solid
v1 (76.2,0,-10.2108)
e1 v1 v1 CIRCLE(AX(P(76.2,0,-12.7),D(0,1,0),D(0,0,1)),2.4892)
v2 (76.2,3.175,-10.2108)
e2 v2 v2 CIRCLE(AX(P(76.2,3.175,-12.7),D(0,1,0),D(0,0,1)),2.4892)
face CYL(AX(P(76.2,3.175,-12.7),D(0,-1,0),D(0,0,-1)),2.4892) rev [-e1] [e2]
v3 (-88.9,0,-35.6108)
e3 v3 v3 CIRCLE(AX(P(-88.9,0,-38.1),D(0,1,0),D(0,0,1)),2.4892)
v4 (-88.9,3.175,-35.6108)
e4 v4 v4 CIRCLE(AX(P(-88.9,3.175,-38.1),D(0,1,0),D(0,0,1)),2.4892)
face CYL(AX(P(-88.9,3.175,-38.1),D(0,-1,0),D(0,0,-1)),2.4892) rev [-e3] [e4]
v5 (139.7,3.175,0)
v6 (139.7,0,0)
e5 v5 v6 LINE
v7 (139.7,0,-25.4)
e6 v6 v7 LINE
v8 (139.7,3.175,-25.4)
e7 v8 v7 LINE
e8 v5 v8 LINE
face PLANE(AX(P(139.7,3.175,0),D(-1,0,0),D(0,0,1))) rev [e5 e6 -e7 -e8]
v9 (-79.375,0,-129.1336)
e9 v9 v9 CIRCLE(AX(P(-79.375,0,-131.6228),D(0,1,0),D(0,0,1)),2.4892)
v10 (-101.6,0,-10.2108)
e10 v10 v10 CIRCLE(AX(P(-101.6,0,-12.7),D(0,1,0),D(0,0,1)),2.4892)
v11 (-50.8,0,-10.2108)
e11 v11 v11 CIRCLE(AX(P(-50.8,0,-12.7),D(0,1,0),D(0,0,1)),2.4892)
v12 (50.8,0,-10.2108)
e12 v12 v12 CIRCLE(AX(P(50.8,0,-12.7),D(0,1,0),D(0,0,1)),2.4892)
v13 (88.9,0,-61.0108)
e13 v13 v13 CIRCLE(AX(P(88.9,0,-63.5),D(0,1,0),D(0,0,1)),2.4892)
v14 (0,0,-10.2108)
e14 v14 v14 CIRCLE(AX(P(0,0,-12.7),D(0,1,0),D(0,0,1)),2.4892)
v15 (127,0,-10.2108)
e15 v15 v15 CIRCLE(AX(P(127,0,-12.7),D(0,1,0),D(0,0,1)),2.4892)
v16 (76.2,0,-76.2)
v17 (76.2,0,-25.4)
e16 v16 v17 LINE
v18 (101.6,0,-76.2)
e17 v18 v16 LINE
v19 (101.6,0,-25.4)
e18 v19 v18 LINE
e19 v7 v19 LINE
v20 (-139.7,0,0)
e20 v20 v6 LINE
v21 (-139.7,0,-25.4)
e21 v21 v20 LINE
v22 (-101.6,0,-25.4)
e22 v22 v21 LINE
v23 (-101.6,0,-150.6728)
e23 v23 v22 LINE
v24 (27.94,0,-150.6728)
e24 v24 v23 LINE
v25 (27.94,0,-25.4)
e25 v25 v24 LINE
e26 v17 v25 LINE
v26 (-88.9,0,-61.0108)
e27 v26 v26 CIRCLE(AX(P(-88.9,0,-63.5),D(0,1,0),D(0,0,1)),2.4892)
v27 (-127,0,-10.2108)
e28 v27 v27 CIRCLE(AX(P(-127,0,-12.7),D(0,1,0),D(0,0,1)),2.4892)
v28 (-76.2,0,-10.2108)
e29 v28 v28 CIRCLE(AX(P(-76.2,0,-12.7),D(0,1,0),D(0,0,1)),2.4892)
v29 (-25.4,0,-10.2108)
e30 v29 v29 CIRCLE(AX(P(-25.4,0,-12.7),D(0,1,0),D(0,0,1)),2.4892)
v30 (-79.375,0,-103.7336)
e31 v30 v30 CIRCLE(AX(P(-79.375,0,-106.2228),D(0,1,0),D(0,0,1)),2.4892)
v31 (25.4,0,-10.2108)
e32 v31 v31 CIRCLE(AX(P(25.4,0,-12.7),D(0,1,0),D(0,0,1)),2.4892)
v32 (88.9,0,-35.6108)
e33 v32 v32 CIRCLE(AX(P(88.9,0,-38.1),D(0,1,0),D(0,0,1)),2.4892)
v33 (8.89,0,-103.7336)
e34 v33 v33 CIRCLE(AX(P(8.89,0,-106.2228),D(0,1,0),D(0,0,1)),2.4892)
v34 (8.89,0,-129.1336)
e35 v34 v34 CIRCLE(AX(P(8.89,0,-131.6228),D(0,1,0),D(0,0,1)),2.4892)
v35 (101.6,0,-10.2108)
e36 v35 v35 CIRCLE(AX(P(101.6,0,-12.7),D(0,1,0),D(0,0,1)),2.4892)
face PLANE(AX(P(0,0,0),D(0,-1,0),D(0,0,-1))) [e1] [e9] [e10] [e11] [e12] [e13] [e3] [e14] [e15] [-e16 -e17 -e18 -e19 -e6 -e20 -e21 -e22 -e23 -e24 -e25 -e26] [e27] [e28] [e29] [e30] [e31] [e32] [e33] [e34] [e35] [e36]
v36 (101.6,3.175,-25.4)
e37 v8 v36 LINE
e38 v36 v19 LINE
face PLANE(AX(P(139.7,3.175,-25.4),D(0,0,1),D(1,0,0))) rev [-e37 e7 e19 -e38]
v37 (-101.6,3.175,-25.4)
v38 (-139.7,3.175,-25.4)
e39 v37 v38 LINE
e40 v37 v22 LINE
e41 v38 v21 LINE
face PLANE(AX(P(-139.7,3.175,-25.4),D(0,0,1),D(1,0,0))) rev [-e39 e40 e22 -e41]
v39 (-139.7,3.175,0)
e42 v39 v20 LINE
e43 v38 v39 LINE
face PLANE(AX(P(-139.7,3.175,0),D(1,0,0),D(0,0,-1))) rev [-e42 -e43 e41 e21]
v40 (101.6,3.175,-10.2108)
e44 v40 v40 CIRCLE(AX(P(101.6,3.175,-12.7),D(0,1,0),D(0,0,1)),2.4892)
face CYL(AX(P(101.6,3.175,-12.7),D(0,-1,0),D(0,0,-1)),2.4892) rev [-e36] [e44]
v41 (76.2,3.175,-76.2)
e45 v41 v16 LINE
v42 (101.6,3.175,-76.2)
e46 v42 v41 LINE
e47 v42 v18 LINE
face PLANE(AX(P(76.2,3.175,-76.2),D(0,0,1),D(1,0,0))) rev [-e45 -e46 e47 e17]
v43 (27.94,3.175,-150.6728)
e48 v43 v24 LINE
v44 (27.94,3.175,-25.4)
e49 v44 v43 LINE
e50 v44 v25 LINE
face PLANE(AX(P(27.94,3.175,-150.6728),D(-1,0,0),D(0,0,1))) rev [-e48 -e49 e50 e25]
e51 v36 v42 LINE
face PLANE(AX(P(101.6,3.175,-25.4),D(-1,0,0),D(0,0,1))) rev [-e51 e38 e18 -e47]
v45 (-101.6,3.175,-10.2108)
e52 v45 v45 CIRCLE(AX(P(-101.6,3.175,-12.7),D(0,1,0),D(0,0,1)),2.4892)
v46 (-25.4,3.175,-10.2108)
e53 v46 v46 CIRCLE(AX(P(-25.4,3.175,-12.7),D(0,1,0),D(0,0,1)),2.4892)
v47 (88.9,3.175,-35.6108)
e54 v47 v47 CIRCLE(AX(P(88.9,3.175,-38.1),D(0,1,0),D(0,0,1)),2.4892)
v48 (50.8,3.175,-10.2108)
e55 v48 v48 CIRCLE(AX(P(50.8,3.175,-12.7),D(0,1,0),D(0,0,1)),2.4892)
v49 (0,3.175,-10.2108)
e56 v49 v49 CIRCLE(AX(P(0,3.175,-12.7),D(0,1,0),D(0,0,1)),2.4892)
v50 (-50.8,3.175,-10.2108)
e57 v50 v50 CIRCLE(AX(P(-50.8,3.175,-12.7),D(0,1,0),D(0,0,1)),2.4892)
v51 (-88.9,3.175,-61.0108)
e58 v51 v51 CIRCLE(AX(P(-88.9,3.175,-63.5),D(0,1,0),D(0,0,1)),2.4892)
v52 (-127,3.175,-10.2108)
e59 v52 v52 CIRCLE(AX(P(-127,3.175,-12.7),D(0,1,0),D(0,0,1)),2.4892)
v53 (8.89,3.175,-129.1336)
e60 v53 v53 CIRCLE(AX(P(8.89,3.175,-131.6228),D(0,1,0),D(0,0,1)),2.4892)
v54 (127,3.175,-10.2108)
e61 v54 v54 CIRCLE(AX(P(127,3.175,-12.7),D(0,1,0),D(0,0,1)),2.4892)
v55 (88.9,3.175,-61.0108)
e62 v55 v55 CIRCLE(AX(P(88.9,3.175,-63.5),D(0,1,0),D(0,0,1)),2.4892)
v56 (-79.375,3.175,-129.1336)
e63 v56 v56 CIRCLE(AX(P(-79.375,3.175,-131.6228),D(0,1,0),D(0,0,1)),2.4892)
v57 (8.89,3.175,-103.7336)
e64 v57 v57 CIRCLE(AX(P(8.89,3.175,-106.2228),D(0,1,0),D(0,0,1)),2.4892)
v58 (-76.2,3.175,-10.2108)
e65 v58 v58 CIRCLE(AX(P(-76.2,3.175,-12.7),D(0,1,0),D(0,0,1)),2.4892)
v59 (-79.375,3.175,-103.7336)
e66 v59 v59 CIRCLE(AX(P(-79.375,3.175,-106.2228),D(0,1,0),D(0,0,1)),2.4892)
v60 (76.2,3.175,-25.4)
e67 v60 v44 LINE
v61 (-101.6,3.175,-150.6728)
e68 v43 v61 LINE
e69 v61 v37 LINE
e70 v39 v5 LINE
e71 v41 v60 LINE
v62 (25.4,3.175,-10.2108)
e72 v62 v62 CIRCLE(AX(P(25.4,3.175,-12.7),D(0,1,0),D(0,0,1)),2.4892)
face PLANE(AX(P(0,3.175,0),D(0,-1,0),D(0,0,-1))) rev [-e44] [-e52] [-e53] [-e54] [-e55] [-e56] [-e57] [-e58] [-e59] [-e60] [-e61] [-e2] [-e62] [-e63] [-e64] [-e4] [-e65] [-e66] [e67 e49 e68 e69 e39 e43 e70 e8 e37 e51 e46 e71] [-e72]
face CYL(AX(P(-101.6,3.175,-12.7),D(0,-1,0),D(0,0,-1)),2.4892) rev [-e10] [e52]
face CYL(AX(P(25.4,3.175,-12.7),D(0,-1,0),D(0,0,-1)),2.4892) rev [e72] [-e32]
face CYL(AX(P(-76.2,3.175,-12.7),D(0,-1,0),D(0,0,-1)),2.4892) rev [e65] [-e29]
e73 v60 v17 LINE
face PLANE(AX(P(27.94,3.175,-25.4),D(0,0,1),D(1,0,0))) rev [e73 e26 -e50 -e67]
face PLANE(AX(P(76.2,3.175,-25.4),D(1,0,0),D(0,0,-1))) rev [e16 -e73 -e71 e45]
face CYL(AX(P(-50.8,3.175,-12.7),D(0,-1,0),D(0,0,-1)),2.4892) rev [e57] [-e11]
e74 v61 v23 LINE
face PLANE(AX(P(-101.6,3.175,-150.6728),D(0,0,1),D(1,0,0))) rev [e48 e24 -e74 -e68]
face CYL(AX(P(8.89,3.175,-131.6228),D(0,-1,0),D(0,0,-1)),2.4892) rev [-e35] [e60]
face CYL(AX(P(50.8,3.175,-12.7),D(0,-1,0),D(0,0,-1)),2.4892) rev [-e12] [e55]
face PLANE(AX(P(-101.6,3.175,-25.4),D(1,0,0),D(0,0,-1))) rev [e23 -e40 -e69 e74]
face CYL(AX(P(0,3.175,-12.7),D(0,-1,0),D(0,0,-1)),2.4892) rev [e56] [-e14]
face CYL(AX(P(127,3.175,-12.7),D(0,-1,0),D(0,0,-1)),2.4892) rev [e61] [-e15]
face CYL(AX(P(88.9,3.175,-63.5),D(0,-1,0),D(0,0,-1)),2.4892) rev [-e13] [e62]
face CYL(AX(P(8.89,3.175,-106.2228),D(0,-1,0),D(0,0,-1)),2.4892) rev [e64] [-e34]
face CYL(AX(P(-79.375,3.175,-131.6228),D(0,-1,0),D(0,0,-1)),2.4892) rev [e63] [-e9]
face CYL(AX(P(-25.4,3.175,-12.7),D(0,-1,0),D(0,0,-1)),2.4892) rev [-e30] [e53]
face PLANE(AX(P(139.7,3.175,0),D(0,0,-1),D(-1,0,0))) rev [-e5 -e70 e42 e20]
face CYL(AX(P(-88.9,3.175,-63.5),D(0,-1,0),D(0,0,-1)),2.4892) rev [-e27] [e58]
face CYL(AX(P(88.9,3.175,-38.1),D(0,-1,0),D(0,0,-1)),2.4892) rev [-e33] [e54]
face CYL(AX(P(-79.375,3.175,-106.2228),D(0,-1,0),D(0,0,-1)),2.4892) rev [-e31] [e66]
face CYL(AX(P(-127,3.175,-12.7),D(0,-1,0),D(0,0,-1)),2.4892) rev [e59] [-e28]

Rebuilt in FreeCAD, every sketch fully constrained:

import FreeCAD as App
import Part
import Sketcher
from FreeCAD import Vector
Q = App.Units.Quantity


def add_polygon(sketch, points):
    """Adds a closed chain of lines whose ends are joined by coincident constraints."""
    first, n = sketch.GeometryCount, len(points)
    for a, b in zip(points, points[1:] + points[:1]):
        sketch.addGeometry(Part.LineSegment(App.Vector(*a, 0), App.Vector(*b, 0)), False)
    for i in range(n):
        sketch.addConstraint(Sketcher.Constraint("Coincident", first + i, 2, first + (i + 1) % n, 1))

doc = App.newDocument("Part")
body = doc.addObject("PartDesign::Body", "Body")

sketch1 = doc.addObject("Sketcher::SketchObject", "Sketch")
body.addObject(sketch1)
sketch1.AttachmentSupport = (doc.XZ_Plane, [""])
sketch1.MapMode = "FlatFace"
add_polygon(sketch1, [(-139.7, 0), (139.7, 0), (139.7, -25.4), (101.6, -25.4), (101.6, -76.2), (76.2, -76.2), (76.2, -25.4), (27.9, -25.4), (27.9, -150.7), (-101.6, -150.7), (-101.6, -25.4), (-139.7, -25.4)])
sketch1.addGeometry(Part.Circle(Vector(127, -12.7, 0), Vector(0, 0, 1), 2.5), False)
sketch1.addGeometry(Part.Circle(Vector(101.6, -12.7, 0), Vector(0, 0, 1), 2.5), False)
sketch1.addGeometry(Part.Circle(Vector(76.2, -12.7, 0), Vector(0, 0, 1), 2.5), False)
sketch1.addGeometry(Part.Circle(Vector(88.9, -38.1, 0), Vector(0, 0, 1), 2.5), False)
sketch1.addGeometry(Part.Circle(Vector(50.8, -12.7, 0), Vector(0, 0, 1), 2.5), False)
sketch1.addGeometry(Part.Circle(Vector(25.4, -12.7, 0), Vector(0, 0, 1), 2.5), False)
sketch1.addGeometry(Part.Circle(Vector(88.9, -63.5, 0), Vector(0, 0, 1), 2.5), False)
sketch1.addGeometry(Part.Circle(Vector(0, -12.7, 0), Vector(0, 0, 1), 2.5), False)
sketch1.addGeometry(Part.Circle(Vector(-25.4, -12.7, 0), Vector(0, 0, 1), 2.5), False)
sketch1.addGeometry(Part.Circle(Vector(-50.8, -12.7, 0), Vector(0, 0, 1), 2.5), False)
sketch1.addGeometry(Part.Circle(Vector(-76.2, -12.7, 0), Vector(0, 0, 1), 2.5), False)
sketch1.addGeometry(Part.Circle(Vector(-101.6, -12.7, 0), Vector(0, 0, 1), 2.5), False)
sketch1.addGeometry(Part.Circle(Vector(-127, -12.7, 0), Vector(0, 0, 1), 2.5), False)
sketch1.addGeometry(Part.Circle(Vector(-88.9, -38.1, 0), Vector(0, 0, 1), 2.5), False)
sketch1.addGeometry(Part.Circle(Vector(-88.9, -63.5, 0), Vector(0, 0, 1), 2.5), False)
sketch1.addGeometry(Part.Circle(Vector(8.9, -106.2, 0), Vector(0, 0, 1), 2.5), False)
sketch1.addGeometry(Part.Circle(Vector(8.9, -131.6, 0), Vector(0, 0, 1), 2.5), False)
sketch1.addGeometry(Part.Circle(Vector(-79.4, -106.2, 0), Vector(0, 0, 1), 2.5), False)
sketch1.addGeometry(Part.Circle(Vector(-79.4, -131.6, 0), Vector(0, 0, 1), 2.5), False)
sketch1.addConstraint(Sketcher.Constraint("Horizontal", 0))
sketch1.addConstraint(Sketcher.Constraint("Vertical", 1))
sketch1.addConstraint(Sketcher.Constraint("Horizontal", 2))
sketch1.addConstraint(Sketcher.Constraint("Vertical", 3))
sketch1.addConstraint(Sketcher.Constraint("Horizontal", 4))
sketch1.addConstraint(Sketcher.Constraint("Vertical", 5))
sketch1.addConstraint(Sketcher.Constraint("Horizontal", 6))
sketch1.addConstraint(Sketcher.Constraint("Vertical", 7))
sketch1.addConstraint(Sketcher.Constraint("Horizontal", 8))
sketch1.addConstraint(Sketcher.Constraint("Vertical", 9))
sketch1.addConstraint(Sketcher.Constraint("Horizontal", 10))
sketch1.addConstraint(Sketcher.Constraint("Vertical", 11))
sketch1.addConstraint(Sketcher.Constraint("Equal", 12, 13))
sketch1.addConstraint(Sketcher.Constraint("Equal", 13, 14))
sketch1.addConstraint(Sketcher.Constraint("Equal", 14, 15))
sketch1.addConstraint(Sketcher.Constraint("Equal", 15, 16))
sketch1.addConstraint(Sketcher.Constraint("Equal", 16, 17))
sketch1.addConstraint(Sketcher.Constraint("Equal", 17, 18))
sketch1.addConstraint(Sketcher.Constraint("Equal", 18, 19))
sketch1.addConstraint(Sketcher.Constraint("Equal", 19, 20))
sketch1.addConstraint(Sketcher.Constraint("Equal", 20, 21))
sketch1.addConstraint(Sketcher.Constraint("Equal", 21, 22))
sketch1.addConstraint(Sketcher.Constraint("Equal", 22, 23))
sketch1.addConstraint(Sketcher.Constraint("Equal", 23, 24))
sketch1.addConstraint(Sketcher.Constraint("Equal", 24, 25))
sketch1.addConstraint(Sketcher.Constraint("Equal", 25, 26))
sketch1.addConstraint(Sketcher.Constraint("Equal", 26, 27))
sketch1.addConstraint(Sketcher.Constraint("Equal", 27, 28))
sketch1.addConstraint(Sketcher.Constraint("Equal", 28, 29))
sketch1.addConstraint(Sketcher.Constraint("Equal", 29, 30))
sketch1.addConstraint(Sketcher.Constraint("Symmetric", 0, 2, 11, 2, -1, 1))
sketch1.addConstraint(Sketcher.Constraint("Symmetric", 17, 3, 20, 3, -2))
sketch1.addConstraint(Sketcher.Constraint("Symmetric", 16, 3, 21, 3, -2))
sketch1.addConstraint(Sketcher.Constraint("Symmetric", 14, 3, 22, 3, -2))
sketch1.addConstraint(Sketcher.Constraint("Symmetric", 13, 3, 23, 3, -2))
sketch1.addConstraint(Sketcher.Constraint("Symmetric", 12, 3, 24, 3, -2))
sketch1.addConstraint(Sketcher.Constraint("Symmetric", 15, 3, 25, 3, -2))
sketch1.addConstraint(Sketcher.Constraint("Symmetric", 18, 3, 26, 3, -2))
sketch1.addConstraint(Sketcher.Constraint("Symmetric", 2, 2, 9, 2, -2))
sketch1.addConstraint(Sketcher.Constraint("PointOnObject", 19, 3, -2))
sketch1.addConstraint(Sketcher.Constraint("Horizontal", 12, 3, 13, 3))
sketch1.addConstraint(Sketcher.Constraint("Horizontal", 13, 3, 14, 3))
sketch1.addConstraint(Sketcher.Constraint("Horizontal", 14, 3, 16, 3))
sketch1.addConstraint(Sketcher.Constraint("Horizontal", 16, 3, 17, 3))
sketch1.addConstraint(Sketcher.Constraint("Horizontal", 17, 3, 19, 3))
sketch1.addConstraint(Sketcher.Constraint("Horizontal", 27, 3, 29, 3))
sketch1.addConstraint(Sketcher.Constraint("Horizontal", 28, 3, 30, 3))
sketch1.addConstraint(Sketcher.Constraint("Horizontal", 2, 2, 5, 2))
sketch1.addConstraint(Sketcher.Constraint("Vertical", 15, 3, 18, 3))
sketch1.addConstraint(Sketcher.Constraint("Vertical", 27, 3, 28, 3))
sketch1.addConstraint(Sketcher.Constraint("Vertical", 29, 3, 30, 3))
sketch1.addConstraint(Sketcher.Constraint("Vertical", 13, 3, 2, 2))
sketch1.addConstraint(Sketcher.Constraint("Vertical", 14, 3, 4, 2))
sketch1.addConstraint(Sketcher.Constraint("Equal", 4, 1))
sketch1.addConstraint(Sketcher.Constraint("DistanceX", 0, 1, 0, 2, Q("11 in")))
sketch1.addConstraint(Sketcher.Constraint("DistanceX", 4, 2, 4, 1, Q("1 in")))
sketch1.addConstraint(Sketcher.Constraint("DistanceY", 3, 2, 3, 1, Q("2 in")))
sketch1.addConstraint(Sketcher.Constraint("Diameter", 12, Q("0.196 in")))
sketch1.addConstraint(Sketcher.Constraint("DistanceX", 2, 2, 2, 1, Q("1.5 in")))
sketch1.addConstraint(Sketcher.Constraint("DistanceX", 6, 2, 6, 1, Q("1.9 in")))
sketch1.addConstraint(Sketcher.Constraint("DistanceX", -1, 1, 12, 3, Q("5 in")))
sketch1.addConstraint(Sketcher.Constraint("DistanceX", -1, 1, 16, 3, Q("2 in")))
sketch1.addConstraint(Sketcher.Constraint("DistanceX", -1, 1, 17, 3, Q("1 in")))
sketch1.addConstraint(Sketcher.Constraint("DistanceY", 15, 3, 13, 3, Q("1 in")))
sketch1.addConstraint(Sketcher.Constraint("DistanceY", 18, 3, 15, 3, Q("1 in")))
sketch1.addConstraint(Sketcher.Constraint("DistanceY", 28, 3, 27, 3, Q("1 in")))
sketch1.addConstraint(Sketcher.Constraint("DistanceX", 15, 3, 0, 2, Q("2 in")))
sketch1.addConstraint(Sketcher.Constraint("DistanceY", 12, 3, -1, 1, Q("0.5 in")))
sketch1.addConstraint(Sketcher.Constraint("DistanceY", 7, 2, 7, 1, Q("4.932 in")))
sketch1.addConstraint(Sketcher.Constraint("DistanceX", -1, 1, 27, 3, Q("0.35 in")))
sketch1.addConstraint(Sketcher.Constraint("DistanceY", 7, 2, 28, 3, Q("0.75 in")))
sketch1.addConstraint(Sketcher.Constraint("DistanceX", 29, 3, -1, 1, Q("3.125 in")))
pad1 = doc.addObject("PartDesign::Pad", "Pad")
body.addObject(pad1)
pad1.Profile = sketch1
pad1.Length = Q("0.125 in")
pad1.Reversed = True

doc.recompute()
